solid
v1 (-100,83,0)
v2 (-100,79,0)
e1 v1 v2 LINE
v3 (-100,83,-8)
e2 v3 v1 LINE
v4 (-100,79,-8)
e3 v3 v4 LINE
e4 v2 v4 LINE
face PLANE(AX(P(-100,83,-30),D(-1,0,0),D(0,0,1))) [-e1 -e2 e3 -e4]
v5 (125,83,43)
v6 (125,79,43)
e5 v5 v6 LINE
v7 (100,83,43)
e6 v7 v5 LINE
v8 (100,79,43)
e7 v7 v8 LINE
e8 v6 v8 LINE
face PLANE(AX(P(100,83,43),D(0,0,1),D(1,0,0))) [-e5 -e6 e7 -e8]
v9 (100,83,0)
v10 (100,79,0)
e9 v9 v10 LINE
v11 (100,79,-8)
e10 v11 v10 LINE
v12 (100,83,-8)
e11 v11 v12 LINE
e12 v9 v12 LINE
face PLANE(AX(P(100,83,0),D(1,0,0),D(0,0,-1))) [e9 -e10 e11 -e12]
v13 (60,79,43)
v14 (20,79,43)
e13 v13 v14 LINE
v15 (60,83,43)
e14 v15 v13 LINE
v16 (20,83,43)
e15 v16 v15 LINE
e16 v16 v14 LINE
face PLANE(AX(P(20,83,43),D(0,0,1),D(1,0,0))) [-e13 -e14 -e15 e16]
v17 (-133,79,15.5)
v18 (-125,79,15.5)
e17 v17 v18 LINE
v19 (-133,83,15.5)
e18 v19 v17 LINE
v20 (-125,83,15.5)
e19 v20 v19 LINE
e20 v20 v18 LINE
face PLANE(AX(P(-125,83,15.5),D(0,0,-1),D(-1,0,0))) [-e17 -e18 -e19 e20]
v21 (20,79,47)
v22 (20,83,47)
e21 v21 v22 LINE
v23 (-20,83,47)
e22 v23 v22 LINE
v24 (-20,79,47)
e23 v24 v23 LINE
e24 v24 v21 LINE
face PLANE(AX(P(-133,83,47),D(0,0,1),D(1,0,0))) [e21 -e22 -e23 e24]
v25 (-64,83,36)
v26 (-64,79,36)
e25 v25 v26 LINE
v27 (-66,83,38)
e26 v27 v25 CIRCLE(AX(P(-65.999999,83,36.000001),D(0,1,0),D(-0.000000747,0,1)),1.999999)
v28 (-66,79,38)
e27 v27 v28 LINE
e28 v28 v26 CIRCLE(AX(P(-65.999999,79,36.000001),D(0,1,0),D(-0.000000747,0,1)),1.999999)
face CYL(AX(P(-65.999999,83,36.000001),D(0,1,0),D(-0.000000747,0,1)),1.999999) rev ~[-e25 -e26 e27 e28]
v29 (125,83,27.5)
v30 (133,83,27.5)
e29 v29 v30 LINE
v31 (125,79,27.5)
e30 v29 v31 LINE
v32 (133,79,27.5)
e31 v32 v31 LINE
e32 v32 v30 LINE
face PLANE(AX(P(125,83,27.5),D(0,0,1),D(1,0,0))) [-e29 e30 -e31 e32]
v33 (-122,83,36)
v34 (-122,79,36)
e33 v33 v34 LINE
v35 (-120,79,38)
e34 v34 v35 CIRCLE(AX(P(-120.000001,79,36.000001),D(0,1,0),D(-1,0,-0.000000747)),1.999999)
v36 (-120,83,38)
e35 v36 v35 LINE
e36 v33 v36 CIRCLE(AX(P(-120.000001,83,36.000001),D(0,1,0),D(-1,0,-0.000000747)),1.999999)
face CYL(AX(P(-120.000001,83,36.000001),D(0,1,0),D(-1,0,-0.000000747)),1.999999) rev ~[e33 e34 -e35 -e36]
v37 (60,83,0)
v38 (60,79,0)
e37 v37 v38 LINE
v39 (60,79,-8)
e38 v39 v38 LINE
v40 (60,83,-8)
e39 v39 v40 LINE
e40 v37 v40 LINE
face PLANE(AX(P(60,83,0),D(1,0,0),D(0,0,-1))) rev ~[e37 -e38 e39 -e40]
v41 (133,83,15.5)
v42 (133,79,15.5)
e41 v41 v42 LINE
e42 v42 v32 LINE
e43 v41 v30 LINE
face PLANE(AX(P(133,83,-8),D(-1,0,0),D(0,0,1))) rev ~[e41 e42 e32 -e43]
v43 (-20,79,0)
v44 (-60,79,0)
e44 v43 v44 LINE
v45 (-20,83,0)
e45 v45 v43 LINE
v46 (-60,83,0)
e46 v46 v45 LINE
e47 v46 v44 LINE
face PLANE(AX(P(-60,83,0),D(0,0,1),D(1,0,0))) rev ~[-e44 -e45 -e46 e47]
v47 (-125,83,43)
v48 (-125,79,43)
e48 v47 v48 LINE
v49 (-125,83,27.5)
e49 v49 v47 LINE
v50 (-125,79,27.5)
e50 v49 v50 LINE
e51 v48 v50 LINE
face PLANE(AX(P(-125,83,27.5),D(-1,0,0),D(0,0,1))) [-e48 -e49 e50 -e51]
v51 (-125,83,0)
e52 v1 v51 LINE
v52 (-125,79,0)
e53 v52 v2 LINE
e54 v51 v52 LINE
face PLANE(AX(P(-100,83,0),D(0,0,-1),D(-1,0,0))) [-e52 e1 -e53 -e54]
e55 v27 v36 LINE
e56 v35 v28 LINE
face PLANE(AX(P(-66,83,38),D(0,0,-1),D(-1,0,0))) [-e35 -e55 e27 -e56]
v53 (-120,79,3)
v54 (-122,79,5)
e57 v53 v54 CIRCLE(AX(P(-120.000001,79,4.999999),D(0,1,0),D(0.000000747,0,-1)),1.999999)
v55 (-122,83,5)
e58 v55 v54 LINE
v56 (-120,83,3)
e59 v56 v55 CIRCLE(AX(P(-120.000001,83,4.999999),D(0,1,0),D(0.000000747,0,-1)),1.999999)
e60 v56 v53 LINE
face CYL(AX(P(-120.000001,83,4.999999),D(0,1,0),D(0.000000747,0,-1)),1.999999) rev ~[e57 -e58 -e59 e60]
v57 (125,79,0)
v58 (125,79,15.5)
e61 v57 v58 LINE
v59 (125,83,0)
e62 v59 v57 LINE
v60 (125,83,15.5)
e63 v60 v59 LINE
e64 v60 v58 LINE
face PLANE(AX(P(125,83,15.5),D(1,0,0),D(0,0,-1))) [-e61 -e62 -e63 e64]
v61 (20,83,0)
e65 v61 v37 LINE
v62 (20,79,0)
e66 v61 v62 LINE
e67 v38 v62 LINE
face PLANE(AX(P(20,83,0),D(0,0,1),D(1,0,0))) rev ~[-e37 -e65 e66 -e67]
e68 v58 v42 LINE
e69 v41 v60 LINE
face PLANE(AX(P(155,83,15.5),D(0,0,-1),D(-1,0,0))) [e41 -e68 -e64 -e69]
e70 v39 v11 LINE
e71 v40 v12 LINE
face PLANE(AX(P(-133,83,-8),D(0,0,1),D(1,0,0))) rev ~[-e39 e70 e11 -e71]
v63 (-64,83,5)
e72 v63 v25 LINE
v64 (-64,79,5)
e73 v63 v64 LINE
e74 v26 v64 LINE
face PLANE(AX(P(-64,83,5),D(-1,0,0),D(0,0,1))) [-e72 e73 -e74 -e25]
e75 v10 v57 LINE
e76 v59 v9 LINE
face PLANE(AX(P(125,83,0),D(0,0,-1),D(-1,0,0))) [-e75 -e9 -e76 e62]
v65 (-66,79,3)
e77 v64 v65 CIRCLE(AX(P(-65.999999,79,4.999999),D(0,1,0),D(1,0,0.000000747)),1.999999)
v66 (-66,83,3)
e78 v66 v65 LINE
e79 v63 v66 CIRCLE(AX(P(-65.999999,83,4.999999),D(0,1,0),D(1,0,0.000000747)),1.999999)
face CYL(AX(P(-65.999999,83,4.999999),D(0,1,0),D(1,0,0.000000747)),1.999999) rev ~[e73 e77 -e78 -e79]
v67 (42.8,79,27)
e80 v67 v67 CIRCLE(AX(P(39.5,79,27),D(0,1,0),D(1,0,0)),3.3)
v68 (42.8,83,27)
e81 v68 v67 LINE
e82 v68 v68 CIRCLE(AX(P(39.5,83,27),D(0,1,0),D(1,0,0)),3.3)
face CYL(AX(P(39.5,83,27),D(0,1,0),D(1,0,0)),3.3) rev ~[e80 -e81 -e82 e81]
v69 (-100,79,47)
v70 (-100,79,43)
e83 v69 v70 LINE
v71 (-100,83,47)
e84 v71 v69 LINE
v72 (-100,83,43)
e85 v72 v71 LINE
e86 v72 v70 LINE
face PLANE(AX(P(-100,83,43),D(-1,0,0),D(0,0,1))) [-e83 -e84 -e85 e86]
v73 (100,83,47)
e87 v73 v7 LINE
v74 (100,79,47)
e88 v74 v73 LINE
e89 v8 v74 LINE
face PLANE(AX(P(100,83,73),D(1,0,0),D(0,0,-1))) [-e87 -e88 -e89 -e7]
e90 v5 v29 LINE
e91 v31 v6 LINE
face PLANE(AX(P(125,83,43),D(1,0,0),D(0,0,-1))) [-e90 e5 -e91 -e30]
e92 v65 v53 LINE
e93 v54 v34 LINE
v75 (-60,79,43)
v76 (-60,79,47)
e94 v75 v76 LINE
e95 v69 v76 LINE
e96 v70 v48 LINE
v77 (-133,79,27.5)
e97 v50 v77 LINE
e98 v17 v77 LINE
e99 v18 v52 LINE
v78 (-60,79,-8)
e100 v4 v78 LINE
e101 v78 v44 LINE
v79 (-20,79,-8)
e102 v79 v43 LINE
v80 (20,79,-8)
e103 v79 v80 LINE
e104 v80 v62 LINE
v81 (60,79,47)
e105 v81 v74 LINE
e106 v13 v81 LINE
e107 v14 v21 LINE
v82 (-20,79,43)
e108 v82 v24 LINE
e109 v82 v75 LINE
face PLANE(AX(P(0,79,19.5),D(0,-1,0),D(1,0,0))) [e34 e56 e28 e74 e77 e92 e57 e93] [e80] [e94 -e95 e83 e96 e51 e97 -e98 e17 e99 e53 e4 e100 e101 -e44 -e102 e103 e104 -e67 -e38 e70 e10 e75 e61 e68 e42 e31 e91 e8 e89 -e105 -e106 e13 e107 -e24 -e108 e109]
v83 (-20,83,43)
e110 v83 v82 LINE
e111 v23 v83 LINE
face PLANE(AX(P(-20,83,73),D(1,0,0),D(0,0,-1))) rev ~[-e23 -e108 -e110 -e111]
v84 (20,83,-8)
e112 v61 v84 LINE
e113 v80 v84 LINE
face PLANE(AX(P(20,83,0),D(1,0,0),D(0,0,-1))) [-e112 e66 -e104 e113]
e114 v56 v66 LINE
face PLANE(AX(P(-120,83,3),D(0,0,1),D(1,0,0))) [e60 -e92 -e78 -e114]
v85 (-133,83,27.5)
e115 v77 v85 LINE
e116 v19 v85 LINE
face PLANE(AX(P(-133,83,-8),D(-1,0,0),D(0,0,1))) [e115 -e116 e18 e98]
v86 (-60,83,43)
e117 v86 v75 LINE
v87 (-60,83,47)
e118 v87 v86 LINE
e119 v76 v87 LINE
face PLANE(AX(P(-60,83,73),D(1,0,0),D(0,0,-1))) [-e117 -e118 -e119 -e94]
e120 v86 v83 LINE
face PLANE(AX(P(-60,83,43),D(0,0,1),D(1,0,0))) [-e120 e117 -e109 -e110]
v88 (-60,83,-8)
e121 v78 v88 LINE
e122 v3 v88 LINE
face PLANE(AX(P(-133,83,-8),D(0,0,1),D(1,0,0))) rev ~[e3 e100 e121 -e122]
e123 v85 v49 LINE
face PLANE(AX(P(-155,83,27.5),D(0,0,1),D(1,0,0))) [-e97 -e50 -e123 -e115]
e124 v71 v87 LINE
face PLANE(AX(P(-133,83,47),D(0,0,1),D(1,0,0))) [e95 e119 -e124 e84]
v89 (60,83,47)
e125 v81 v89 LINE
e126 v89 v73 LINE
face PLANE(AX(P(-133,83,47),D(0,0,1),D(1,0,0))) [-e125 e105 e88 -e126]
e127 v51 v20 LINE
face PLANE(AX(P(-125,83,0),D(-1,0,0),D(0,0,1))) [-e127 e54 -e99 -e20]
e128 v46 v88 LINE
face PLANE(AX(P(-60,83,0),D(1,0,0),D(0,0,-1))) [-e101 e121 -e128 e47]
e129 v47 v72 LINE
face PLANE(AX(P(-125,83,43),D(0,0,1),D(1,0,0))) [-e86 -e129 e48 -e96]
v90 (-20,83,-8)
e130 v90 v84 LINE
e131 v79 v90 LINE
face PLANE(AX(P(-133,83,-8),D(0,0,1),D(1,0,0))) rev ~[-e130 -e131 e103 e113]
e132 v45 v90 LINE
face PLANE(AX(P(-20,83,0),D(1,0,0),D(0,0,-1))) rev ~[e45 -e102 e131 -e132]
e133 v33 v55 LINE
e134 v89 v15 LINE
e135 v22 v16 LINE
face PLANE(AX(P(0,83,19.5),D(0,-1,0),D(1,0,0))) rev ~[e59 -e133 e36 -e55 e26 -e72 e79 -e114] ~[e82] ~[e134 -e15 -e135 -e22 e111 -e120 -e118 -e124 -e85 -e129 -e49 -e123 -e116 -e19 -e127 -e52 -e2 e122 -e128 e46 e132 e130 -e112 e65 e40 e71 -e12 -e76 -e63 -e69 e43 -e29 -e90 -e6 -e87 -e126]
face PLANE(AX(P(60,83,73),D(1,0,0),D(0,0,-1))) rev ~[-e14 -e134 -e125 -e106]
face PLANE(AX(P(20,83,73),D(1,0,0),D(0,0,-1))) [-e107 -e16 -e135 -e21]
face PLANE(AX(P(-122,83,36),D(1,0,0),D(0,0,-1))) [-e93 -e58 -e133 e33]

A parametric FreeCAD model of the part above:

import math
import FreeCAD as App
import Part
import Sketcher

V = App.Vector
Q = App.Units.Quantity


def add_polygon(sketch, points):
    """Adds a closed chain of lines whose ends are joined by coincident constraints."""
    first, n = sketch.GeometryCount, len(points)
    for a, b in zip(points, points[1:] + points[:1]):
        sketch.addGeometry(Part.LineSegment(App.Vector(*a, 0), App.Vector(*b, 0)), False)
    for i in range(n):
        sketch.addConstraint(Sketcher.Constraint("Coincident", first + i, 2, first + (i + 1) % n, 1))

doc = App.newDocument("Part")
body = doc.addObject("PartDesign::Body", "Body")

# Sketch on XZ plane
sketch1 = body.newObject("Sketcher::SketchObject", "Sketch")
sketch1.AttachmentSupport = (doc.getObject("XZ_Plane"), [""])
sketch1.MapMode = "FlatFace"
sketch1.AttachmentOffset = App.Placement(V(0, 0, -83), App.Rotation())
add_polygon(sketch1, [(-133, 47), (-133, -8), (133, -8), (133, 47)])  # lines 0-3
sketch1.addConstraint([
    Sketcher.Constraint("Vertical", 0),
    Sketcher.Constraint("Horizontal", 1),
    Sketcher.Constraint("Vertical", 2),
    Sketcher.Constraint("Horizontal", 3),
    Sketcher.Constraint("DistanceX", 1, 1, 1, 2, Q("266 mm")),
    Sketcher.Constraint("DistanceY", 0, 2, 0, 1, Q("55 mm")),
    Sketcher.Constraint("DistanceX", 0, 2, -1, 1, Q("133 mm")),
    Sketcher.Constraint("DistanceY", 0, 2, -1, 1, Q("8 mm")),
])
pad1 = body.newObject("PartDesign::Pad", "Pad")
pad1.Profile = sketch1
pad1.Length = 4

# Sketch on XZ plane
sketch2 = body.newObject("Sketcher::SketchObject", "Sketch001")
sketch2.AttachmentSupport = (doc.getObject("XZ_Plane"), [""])
sketch2.MapMode = "FlatFace"
sketch2.AttachmentOffset = App.Placement(V(0, 0, -83), App.Rotation())
add_polygon(sketch2, [(-100, -30), (-145, -30), (-145, -4), (-155, -4), (-155, 16), (-125, 16), (-125, 0), (-100, 0)])  # lines 0-7
add_polygon(sketch2, [(-60, -30), (-60, 0), (-20, 0), (-20, -30)])  # lines 8-11
add_polygon(sketch2, [(20, -30), (20, 0), (60, 0), (60, -30)])  # lines 12-15
add_polygon(sketch2, [(145, -30), (100, -30), (100, 0), (125, 0), (125, 16), (155, 16), (155, -4), (145, -4)])  # lines 16-23
add_polygon(sketch2, [(-100, 43), (-125, 43), (-125, 28), (-155, 28), (-155, 48), (-145, 48), (-145, 73), (-100, 73)])  # lines 24-31
add_polygon(sketch2, [(-60, 43), (-60, 73), (-20, 73), (-20, 43)])  # lines 32-35
add_polygon(sketch2, [(20, 43), (20, 73), (60, 73), (60, 43)])  # lines 36-39
add_polygon(sketch2, [(125, 43), (100, 43), (100, 73), (145, 73), (145, 48), (155, 48), (155, 28), (125, 28)])  # lines 40-47
sketch2.addConstraint([
    Sketcher.Constraint("Horizontal", 0),
    Sketcher.Constraint("Vertical", 1),
    Sketcher.Constraint("Horizontal", 2),
    Sketcher.Constraint("Vertical", 3),
    Sketcher.Constraint("Horizontal", 4),
    Sketcher.Constraint("Vertical", 5),
    Sketcher.Constraint("Horizontal", 6),
    Sketcher.Constraint("Vertical", 7),
    Sketcher.Constraint("Vertical", 8),
    Sketcher.Constraint("Horizontal", 9),
    Sketcher.Constraint("Vertical", 10),
    Sketcher.Constraint("Horizontal", 11),
    Sketcher.Constraint("Vertical", 12),
    Sketcher.Constraint("Horizontal", 13),
    Sketcher.Constraint("Vertical", 14),
    Sketcher.Constraint("Horizontal", 15),
    Sketcher.Constraint("Horizontal", 16),
    Sketcher.Constraint("Vertical", 17),
    Sketcher.Constraint("Horizontal", 18),
    Sketcher.Constraint("Vertical", 19),
    Sketcher.Constraint("Horizontal", 20),
    Sketcher.Constraint("Vertical", 21),
    Sketcher.Constraint("Horizontal", 22),
    Sketcher.Constraint("Vertical", 23),
    Sketcher.Constraint("Horizontal", 24),
    Sketcher.Constraint("Vertical", 25),
    Sketcher.Constraint("Horizontal", 26),
    Sketcher.Constraint("Vertical", 27),
    Sketcher.Constraint("Horizontal", 28),
    Sketcher.Constraint("Vertical", 29),
    Sketcher.Constraint("Horizontal", 30),
    Sketcher.Constraint("Vertical", 31),
    Sketcher.Constraint("Vertical", 32),
    Sketcher.Constraint("Horizontal", 33),
    Sketcher.Constraint("Vertical", 34),
    Sketcher.Constraint("Horizontal", 35),
    Sketcher.Constraint("Vertical", 36),
    Sketcher.Constraint("Horizontal", 37),
    Sketcher.Constraint("Vertical", 38),
    Sketcher.Constraint("Horizontal", 39),
    Sketcher.Constraint("Horizontal", 40),
    Sketcher.Constraint("Vertical", 41),
    Sketcher.Constraint("Horizontal", 42),
    Sketcher.Constraint("Vertical", 43),
    Sketcher.Constraint("Horizontal", 44),
    Sketcher.Constraint("Vertical", 45),
    Sketcher.Constraint("Horizontal", 46),
    Sketcher.Constraint("Vertical", 47),
    Sketcher.Constraint("Symmetric", 9, 2, 12, 2, -1, 1),
    Sketcher.Constraint("Symmetric", 6, 2, 17, 2, -1, 1),
    Sketcher.Constraint("Symmetric", 8, 2, 13, 2, -2),
    Sketcher.Constraint("Symmetric", 5, 2, 18, 2, -2),
    Sketcher.Constraint("Symmetric", 3, 2, 20, 2, -2),
    Sketcher.Constraint("Symmetric", 1, 2, 22, 2, -2),
    Sketcher.Constraint("Symmetric", 33, 2, 36, 2, -2),
    Sketcher.Constraint("Symmetric", 35, 2, 38, 2, -2),
    Sketcher.Constraint("Symmetric", 31, 2, 40, 2, -2),
    Sketcher.Constraint("Symmetric", 29, 2, 42, 2, -2),
    Sketcher.Constraint("Symmetric", 27, 2, 44, 2, -2),
    Sketcher.Constraint("Symmetric", 25, 2, 46, 2, -2),
    Sketcher.Constraint("Horizontal", 7, 2, 10, 2),
    Sketcher.Constraint("Horizontal", 11, 2, 14, 2),
    Sketcher.Constraint("Horizontal", 15, 2, 16, 2),
    Sketcher.Constraint("Horizontal", 30, 2, 32, 2),
    Sketcher.Constraint("Horizontal", 31, 2, 34, 2),
    Sketcher.Constraint("Vertical", 5, 2, 24, 2),
    Sketcher.Constraint("Vertical", 3, 2, 26, 2),
    Sketcher.Constraint("Vertical", 1, 2, 28, 2),
    Sketcher.Constraint("Vertical", 7, 2, 30, 2),
    Sketcher.Constraint("Vertical", 11, 2, 32, 2),
    Sketcher.Constraint("Vertical", 10, 2, 33, 2),
    Sketcher.Constraint("Equal", 46, 7),
    Sketcher.Constraint("Equal", 19, 25),
    Sketcher.Constraint("Equal", 21, 27),
    Sketcher.Constraint("Equal", 23, 29),
    Sketcher.Constraint("DistanceX", 0, 2, 0, 1, Q("45 mm")),
    Sketcher.Constraint("DistanceX", 2, 2, 2, 1, Q("10 mm")),
    Sketcher.Constraint("DistanceX", 4, 1, 4, 2, Q("30 mm")),
    Sketcher.Constraint("DistanceX", 9, 1, 9, 2, Q("40 mm")),
    Sketcher.Constraint("DistanceY", 3, 1, 3, 2, Q("20 mm")),
    Sketcher.Constraint("DistanceY", 1, 1, 1, 2, Q("25.5 mm")),
    Sketcher.Constraint("DistanceX", 0, 2, -1, 1, Q("145 mm")),
    Sketcher.Constraint("DistanceX", 8, 2, -1, 1, Q("60 mm")),
    Sketcher.Constraint("DistanceY", -1, 1, 24, 2, Q("43 mm")),
])
pocket1 = body.newObject("PartDesign::Pocket", "Pocket")
pocket1.Profile = sketch2
pocket1.Type = "ThroughAll"
pocket1.Reversed = True

# Sketch on XZ plane
sketch3 = body.newObject("Sketcher::SketchObject", "Sketch002")
sketch3.AttachmentSupport = (doc.getObject("XZ_Plane"), [""])
sketch3.MapMode = "FlatFace"
sketch3.AttachmentOffset = App.Placement(V(0, 0, -83), App.Rotation())
sketch3.addGeometry([
    Part.LineSegment(V(-66, 3, 0), V(-120, 3, 0)),  # 0
    Part.ArcOfCircle(Part.Circle(V(-120, 5, 0), V(0, 0, 1), 2), math.radians(180), math.radians(270)),  # 1
    Part.LineSegment(V(-122, 5, 0), V(-122, 36, 0)),  # 2
    Part.ArcOfCircle(Part.Circle(V(-120, 36, 0), V(0, 0, 1), 2), math.radians(90), math.radians(180)),  # 3
    Part.LineSegment(V(-120, 38, 0), V(-66, 38, 0)),  # 4
    Part.ArcOfCircle(Part.Circle(V(-66, 36, 0), V(0, 0, 1), 2), math.radians(0), math.radians(90)),  # 5
    Part.LineSegment(V(-64, 36, 0), V(-64, 5, 0)),  # 6
    Part.ArcOfCircle(Part.Circle(V(-66, 5, 0), V(0, 0, 1), 2), math.radians(-90), math.radians(0)),  # 7
], False)
sketch3.addConstraint([
    Sketcher.Constraint("Tangent", 0, 2, 1, 2),
    Sketcher.Constraint("Tangent", 1, 1, 2, 1),
    Sketcher.Constraint("Tangent", 2, 2, 3, 2),
    Sketcher.Constraint("Tangent", 3, 1, 4, 1),
    Sketcher.Constraint("Tangent", 4, 2, 5, 2),
    Sketcher.Constraint("Tangent", 5, 1, 6, 1),
    Sketcher.Constraint("Tangent", 6, 2, 7, 2),
    Sketcher.Constraint("Tangent", 7, 1, 0, 1),
    Sketcher.Constraint("Horizontal", 0),
    Sketcher.Constraint("Vertical", 2),
    Sketcher.Constraint("Horizontal", 4),
    Sketcher.Constraint("Vertical", 6),
    Sketcher.Constraint("Equal", 1, 3),
    Sketcher.Constraint("Equal", 3, 5),
    Sketcher.Constraint("Equal", 5, 7),
    Sketcher.Constraint("Radius", 1, Q("1.999999 mm")),
    Sketcher.Constraint("DistanceX", 0, 2, 0, 1, Q("54 mm")),
    Sketcher.Constraint("DistanceY", 2, 1, 2, 2, Q("31 mm")),
    Sketcher.Constraint("DistanceX", 1, 3, -1, 1, Q("120.000001 mm")),
    Sketcher.Constraint("DistanceY", -1, 1, 1, 3, Q("4.999999 mm")),
])
pocket2 = body.newObject("PartDesign::Pocket", "Pocket001")
pocket2.Profile = sketch3
pocket2.Type = "ThroughAll"
pocket2.Reversed = True

# Sketch on XZ plane
sketch4 = body.newObject("Sketcher::SketchObject", "Sketch003")
sketch4.AttachmentSupport = (doc.getObject("XZ_Plane"), [""])
sketch4.MapMode = "FlatFace"
sketch4.AttachmentOffset = App.Placement(V(0, 0, -83), App.Rotation())
sketch4.addGeometry(Part.Circle(V(39.5, 27, 0), V(0, 0, 1), 3.3), False)
sketch4.addConstraint([
    Sketcher.Constraint("Diameter", 0, Q("6.6 mm")),
    Sketcher.Constraint("DistanceY", -1, 1, 0, 3, Q("27 mm")),
    Sketcher.Constraint("DistanceX", -1, 1, 0, 3, Q("39.5 mm")),
])
pocket3 = body.newObject("PartDesign::Pocket", "Pocket002")
pocket3.Profile = sketch4
pocket3.Type = "ThroughAll"
pocket3.Reversed = True

doc.recompute()
